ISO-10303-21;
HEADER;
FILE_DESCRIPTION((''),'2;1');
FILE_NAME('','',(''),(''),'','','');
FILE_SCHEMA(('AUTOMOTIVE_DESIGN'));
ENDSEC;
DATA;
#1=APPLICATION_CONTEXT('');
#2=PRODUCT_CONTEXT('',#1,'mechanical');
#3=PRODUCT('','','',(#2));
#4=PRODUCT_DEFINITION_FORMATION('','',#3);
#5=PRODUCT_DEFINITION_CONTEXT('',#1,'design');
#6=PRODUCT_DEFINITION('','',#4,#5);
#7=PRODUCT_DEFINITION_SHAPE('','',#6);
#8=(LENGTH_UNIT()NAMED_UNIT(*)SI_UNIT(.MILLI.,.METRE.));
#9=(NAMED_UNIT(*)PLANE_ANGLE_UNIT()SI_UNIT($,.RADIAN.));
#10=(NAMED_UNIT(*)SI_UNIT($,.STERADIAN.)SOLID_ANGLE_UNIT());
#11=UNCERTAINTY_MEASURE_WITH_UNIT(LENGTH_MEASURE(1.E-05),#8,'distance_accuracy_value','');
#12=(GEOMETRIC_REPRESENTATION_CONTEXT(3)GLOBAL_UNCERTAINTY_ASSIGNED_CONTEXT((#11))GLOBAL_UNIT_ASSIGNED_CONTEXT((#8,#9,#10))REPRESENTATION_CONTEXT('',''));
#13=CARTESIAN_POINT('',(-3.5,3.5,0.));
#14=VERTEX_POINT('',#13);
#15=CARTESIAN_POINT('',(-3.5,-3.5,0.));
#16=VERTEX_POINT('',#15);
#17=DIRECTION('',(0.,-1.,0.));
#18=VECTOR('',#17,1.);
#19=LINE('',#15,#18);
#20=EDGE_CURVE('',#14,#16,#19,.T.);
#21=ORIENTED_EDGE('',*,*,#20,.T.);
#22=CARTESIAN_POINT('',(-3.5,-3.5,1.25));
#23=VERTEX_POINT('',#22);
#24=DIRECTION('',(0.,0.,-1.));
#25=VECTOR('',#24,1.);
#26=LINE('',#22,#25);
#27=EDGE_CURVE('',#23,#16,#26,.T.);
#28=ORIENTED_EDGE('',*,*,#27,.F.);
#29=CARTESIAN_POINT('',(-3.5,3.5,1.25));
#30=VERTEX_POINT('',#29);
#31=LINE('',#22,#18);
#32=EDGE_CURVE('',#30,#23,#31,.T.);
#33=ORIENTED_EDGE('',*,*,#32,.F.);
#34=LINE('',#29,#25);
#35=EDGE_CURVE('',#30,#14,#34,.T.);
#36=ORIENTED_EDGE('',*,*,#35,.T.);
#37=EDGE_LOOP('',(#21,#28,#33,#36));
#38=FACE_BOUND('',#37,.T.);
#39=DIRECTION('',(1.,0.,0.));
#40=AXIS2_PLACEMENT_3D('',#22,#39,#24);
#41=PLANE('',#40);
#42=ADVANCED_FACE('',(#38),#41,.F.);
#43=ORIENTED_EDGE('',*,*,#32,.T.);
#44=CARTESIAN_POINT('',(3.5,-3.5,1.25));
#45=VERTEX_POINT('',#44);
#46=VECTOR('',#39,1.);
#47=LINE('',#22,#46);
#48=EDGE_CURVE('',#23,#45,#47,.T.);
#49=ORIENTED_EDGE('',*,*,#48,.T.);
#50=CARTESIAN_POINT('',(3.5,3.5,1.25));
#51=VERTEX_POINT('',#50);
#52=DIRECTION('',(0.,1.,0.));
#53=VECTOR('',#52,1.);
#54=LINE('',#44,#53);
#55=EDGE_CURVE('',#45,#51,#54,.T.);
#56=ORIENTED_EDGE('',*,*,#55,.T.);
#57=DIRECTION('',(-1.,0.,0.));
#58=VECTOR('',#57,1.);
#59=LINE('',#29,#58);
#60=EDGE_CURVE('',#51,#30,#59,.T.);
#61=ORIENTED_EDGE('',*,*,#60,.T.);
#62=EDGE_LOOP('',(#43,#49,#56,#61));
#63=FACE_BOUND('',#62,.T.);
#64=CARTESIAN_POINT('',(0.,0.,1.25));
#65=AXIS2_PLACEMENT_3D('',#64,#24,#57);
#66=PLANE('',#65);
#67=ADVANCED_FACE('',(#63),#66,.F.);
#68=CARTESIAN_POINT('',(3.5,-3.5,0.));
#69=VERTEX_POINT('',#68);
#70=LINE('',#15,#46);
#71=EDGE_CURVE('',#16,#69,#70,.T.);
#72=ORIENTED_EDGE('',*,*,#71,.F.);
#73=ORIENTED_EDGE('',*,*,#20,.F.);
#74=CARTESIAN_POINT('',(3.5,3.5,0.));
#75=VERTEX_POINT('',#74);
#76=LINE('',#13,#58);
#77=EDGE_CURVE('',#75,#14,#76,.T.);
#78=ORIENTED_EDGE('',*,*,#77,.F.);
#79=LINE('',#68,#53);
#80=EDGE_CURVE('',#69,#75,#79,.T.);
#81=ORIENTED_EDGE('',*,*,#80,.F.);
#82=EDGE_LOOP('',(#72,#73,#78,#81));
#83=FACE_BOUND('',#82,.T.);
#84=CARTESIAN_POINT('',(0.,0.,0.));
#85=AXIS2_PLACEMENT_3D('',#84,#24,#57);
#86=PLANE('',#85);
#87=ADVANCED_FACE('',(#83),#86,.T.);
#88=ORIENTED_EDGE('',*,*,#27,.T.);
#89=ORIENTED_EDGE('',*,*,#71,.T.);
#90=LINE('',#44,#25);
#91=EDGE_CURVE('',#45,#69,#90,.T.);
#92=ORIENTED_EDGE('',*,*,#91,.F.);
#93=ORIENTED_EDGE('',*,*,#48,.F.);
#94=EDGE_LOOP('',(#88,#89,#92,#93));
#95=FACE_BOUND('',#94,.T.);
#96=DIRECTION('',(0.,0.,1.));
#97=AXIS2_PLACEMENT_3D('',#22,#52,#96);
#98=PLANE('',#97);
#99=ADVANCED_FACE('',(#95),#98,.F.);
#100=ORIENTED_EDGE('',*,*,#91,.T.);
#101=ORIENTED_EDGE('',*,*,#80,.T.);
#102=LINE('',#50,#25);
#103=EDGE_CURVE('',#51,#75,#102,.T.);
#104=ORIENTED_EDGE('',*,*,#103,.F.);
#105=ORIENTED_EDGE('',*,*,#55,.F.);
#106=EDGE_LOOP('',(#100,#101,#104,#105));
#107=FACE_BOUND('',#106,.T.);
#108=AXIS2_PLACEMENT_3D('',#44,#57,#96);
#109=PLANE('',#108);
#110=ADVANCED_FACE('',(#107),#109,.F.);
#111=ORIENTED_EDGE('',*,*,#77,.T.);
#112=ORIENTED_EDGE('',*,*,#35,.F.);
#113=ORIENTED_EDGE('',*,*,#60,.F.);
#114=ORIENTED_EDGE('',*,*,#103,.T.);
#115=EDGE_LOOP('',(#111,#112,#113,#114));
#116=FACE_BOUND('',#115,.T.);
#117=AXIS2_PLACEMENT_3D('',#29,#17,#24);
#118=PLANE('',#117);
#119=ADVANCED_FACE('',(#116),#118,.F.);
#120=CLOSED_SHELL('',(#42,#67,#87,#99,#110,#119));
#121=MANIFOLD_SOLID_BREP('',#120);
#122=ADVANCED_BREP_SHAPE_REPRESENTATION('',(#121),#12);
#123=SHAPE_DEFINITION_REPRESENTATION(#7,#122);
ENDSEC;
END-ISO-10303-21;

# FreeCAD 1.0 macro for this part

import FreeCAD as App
import Part
import Sketcher
from FreeCAD import Vector
Q = App.Units.Quantity

doc = App.newDocument("Part")
body = doc.addObject("PartDesign::Body", "Body")

# Sketch on XY plane
sketch1 = body.newObject("Sketcher::SketchObject", "Sketch")
sketch1.AttachmentSupport = (doc.getObject("XY_Plane"), [""])
sketch1.MapMode = "FlatFace"
sketch1.addGeometry([
    Part.LineSegment(Vector(-3.5, 3.5, 0), Vector(-3.5, -3.5, 0)),
    Part.LineSegment(Vector(-3.5, -3.5, 0), Vector(3.5, -3.5, 0)),
    Part.LineSegment(Vector(3.5, -3.5, 0), Vector(3.5, 3.5, 0)),
    Part.LineSegment(Vector(3.5, 3.5, 0), Vector(-3.5, 3.5, 0)),
], False)
sketch1.addConstraint([
    Sketcher.Constraint("Coincident", 0, 2, 1, 1),
    Sketcher.Constraint("Coincident", 1, 2, 2, 1),
    Sketcher.Constraint("Coincident", 2, 2, 3, 1),
    Sketcher.Constraint("Coincident", 3, 2, 0, 1),
    Sketcher.Constraint("Vertical", 0),
    Sketcher.Constraint("Horizontal", 1),
    Sketcher.Constraint("Vertical", 2),
    Sketcher.Constraint("Horizontal", 3),
    Sketcher.Constraint("Symmetric", 0, 2, 2, 2, -1, 1),
    Sketcher.Constraint("Equal", 3, 0),
    Sketcher.Constraint("DistanceX", 1, 1, 1, 2, Q("7 mm")),
])
pad1 = body.newObject("PartDesign::Pad", "Pad")
pad1.Profile = sketch1
pad1.Length = 1.25

doc.recompute()
